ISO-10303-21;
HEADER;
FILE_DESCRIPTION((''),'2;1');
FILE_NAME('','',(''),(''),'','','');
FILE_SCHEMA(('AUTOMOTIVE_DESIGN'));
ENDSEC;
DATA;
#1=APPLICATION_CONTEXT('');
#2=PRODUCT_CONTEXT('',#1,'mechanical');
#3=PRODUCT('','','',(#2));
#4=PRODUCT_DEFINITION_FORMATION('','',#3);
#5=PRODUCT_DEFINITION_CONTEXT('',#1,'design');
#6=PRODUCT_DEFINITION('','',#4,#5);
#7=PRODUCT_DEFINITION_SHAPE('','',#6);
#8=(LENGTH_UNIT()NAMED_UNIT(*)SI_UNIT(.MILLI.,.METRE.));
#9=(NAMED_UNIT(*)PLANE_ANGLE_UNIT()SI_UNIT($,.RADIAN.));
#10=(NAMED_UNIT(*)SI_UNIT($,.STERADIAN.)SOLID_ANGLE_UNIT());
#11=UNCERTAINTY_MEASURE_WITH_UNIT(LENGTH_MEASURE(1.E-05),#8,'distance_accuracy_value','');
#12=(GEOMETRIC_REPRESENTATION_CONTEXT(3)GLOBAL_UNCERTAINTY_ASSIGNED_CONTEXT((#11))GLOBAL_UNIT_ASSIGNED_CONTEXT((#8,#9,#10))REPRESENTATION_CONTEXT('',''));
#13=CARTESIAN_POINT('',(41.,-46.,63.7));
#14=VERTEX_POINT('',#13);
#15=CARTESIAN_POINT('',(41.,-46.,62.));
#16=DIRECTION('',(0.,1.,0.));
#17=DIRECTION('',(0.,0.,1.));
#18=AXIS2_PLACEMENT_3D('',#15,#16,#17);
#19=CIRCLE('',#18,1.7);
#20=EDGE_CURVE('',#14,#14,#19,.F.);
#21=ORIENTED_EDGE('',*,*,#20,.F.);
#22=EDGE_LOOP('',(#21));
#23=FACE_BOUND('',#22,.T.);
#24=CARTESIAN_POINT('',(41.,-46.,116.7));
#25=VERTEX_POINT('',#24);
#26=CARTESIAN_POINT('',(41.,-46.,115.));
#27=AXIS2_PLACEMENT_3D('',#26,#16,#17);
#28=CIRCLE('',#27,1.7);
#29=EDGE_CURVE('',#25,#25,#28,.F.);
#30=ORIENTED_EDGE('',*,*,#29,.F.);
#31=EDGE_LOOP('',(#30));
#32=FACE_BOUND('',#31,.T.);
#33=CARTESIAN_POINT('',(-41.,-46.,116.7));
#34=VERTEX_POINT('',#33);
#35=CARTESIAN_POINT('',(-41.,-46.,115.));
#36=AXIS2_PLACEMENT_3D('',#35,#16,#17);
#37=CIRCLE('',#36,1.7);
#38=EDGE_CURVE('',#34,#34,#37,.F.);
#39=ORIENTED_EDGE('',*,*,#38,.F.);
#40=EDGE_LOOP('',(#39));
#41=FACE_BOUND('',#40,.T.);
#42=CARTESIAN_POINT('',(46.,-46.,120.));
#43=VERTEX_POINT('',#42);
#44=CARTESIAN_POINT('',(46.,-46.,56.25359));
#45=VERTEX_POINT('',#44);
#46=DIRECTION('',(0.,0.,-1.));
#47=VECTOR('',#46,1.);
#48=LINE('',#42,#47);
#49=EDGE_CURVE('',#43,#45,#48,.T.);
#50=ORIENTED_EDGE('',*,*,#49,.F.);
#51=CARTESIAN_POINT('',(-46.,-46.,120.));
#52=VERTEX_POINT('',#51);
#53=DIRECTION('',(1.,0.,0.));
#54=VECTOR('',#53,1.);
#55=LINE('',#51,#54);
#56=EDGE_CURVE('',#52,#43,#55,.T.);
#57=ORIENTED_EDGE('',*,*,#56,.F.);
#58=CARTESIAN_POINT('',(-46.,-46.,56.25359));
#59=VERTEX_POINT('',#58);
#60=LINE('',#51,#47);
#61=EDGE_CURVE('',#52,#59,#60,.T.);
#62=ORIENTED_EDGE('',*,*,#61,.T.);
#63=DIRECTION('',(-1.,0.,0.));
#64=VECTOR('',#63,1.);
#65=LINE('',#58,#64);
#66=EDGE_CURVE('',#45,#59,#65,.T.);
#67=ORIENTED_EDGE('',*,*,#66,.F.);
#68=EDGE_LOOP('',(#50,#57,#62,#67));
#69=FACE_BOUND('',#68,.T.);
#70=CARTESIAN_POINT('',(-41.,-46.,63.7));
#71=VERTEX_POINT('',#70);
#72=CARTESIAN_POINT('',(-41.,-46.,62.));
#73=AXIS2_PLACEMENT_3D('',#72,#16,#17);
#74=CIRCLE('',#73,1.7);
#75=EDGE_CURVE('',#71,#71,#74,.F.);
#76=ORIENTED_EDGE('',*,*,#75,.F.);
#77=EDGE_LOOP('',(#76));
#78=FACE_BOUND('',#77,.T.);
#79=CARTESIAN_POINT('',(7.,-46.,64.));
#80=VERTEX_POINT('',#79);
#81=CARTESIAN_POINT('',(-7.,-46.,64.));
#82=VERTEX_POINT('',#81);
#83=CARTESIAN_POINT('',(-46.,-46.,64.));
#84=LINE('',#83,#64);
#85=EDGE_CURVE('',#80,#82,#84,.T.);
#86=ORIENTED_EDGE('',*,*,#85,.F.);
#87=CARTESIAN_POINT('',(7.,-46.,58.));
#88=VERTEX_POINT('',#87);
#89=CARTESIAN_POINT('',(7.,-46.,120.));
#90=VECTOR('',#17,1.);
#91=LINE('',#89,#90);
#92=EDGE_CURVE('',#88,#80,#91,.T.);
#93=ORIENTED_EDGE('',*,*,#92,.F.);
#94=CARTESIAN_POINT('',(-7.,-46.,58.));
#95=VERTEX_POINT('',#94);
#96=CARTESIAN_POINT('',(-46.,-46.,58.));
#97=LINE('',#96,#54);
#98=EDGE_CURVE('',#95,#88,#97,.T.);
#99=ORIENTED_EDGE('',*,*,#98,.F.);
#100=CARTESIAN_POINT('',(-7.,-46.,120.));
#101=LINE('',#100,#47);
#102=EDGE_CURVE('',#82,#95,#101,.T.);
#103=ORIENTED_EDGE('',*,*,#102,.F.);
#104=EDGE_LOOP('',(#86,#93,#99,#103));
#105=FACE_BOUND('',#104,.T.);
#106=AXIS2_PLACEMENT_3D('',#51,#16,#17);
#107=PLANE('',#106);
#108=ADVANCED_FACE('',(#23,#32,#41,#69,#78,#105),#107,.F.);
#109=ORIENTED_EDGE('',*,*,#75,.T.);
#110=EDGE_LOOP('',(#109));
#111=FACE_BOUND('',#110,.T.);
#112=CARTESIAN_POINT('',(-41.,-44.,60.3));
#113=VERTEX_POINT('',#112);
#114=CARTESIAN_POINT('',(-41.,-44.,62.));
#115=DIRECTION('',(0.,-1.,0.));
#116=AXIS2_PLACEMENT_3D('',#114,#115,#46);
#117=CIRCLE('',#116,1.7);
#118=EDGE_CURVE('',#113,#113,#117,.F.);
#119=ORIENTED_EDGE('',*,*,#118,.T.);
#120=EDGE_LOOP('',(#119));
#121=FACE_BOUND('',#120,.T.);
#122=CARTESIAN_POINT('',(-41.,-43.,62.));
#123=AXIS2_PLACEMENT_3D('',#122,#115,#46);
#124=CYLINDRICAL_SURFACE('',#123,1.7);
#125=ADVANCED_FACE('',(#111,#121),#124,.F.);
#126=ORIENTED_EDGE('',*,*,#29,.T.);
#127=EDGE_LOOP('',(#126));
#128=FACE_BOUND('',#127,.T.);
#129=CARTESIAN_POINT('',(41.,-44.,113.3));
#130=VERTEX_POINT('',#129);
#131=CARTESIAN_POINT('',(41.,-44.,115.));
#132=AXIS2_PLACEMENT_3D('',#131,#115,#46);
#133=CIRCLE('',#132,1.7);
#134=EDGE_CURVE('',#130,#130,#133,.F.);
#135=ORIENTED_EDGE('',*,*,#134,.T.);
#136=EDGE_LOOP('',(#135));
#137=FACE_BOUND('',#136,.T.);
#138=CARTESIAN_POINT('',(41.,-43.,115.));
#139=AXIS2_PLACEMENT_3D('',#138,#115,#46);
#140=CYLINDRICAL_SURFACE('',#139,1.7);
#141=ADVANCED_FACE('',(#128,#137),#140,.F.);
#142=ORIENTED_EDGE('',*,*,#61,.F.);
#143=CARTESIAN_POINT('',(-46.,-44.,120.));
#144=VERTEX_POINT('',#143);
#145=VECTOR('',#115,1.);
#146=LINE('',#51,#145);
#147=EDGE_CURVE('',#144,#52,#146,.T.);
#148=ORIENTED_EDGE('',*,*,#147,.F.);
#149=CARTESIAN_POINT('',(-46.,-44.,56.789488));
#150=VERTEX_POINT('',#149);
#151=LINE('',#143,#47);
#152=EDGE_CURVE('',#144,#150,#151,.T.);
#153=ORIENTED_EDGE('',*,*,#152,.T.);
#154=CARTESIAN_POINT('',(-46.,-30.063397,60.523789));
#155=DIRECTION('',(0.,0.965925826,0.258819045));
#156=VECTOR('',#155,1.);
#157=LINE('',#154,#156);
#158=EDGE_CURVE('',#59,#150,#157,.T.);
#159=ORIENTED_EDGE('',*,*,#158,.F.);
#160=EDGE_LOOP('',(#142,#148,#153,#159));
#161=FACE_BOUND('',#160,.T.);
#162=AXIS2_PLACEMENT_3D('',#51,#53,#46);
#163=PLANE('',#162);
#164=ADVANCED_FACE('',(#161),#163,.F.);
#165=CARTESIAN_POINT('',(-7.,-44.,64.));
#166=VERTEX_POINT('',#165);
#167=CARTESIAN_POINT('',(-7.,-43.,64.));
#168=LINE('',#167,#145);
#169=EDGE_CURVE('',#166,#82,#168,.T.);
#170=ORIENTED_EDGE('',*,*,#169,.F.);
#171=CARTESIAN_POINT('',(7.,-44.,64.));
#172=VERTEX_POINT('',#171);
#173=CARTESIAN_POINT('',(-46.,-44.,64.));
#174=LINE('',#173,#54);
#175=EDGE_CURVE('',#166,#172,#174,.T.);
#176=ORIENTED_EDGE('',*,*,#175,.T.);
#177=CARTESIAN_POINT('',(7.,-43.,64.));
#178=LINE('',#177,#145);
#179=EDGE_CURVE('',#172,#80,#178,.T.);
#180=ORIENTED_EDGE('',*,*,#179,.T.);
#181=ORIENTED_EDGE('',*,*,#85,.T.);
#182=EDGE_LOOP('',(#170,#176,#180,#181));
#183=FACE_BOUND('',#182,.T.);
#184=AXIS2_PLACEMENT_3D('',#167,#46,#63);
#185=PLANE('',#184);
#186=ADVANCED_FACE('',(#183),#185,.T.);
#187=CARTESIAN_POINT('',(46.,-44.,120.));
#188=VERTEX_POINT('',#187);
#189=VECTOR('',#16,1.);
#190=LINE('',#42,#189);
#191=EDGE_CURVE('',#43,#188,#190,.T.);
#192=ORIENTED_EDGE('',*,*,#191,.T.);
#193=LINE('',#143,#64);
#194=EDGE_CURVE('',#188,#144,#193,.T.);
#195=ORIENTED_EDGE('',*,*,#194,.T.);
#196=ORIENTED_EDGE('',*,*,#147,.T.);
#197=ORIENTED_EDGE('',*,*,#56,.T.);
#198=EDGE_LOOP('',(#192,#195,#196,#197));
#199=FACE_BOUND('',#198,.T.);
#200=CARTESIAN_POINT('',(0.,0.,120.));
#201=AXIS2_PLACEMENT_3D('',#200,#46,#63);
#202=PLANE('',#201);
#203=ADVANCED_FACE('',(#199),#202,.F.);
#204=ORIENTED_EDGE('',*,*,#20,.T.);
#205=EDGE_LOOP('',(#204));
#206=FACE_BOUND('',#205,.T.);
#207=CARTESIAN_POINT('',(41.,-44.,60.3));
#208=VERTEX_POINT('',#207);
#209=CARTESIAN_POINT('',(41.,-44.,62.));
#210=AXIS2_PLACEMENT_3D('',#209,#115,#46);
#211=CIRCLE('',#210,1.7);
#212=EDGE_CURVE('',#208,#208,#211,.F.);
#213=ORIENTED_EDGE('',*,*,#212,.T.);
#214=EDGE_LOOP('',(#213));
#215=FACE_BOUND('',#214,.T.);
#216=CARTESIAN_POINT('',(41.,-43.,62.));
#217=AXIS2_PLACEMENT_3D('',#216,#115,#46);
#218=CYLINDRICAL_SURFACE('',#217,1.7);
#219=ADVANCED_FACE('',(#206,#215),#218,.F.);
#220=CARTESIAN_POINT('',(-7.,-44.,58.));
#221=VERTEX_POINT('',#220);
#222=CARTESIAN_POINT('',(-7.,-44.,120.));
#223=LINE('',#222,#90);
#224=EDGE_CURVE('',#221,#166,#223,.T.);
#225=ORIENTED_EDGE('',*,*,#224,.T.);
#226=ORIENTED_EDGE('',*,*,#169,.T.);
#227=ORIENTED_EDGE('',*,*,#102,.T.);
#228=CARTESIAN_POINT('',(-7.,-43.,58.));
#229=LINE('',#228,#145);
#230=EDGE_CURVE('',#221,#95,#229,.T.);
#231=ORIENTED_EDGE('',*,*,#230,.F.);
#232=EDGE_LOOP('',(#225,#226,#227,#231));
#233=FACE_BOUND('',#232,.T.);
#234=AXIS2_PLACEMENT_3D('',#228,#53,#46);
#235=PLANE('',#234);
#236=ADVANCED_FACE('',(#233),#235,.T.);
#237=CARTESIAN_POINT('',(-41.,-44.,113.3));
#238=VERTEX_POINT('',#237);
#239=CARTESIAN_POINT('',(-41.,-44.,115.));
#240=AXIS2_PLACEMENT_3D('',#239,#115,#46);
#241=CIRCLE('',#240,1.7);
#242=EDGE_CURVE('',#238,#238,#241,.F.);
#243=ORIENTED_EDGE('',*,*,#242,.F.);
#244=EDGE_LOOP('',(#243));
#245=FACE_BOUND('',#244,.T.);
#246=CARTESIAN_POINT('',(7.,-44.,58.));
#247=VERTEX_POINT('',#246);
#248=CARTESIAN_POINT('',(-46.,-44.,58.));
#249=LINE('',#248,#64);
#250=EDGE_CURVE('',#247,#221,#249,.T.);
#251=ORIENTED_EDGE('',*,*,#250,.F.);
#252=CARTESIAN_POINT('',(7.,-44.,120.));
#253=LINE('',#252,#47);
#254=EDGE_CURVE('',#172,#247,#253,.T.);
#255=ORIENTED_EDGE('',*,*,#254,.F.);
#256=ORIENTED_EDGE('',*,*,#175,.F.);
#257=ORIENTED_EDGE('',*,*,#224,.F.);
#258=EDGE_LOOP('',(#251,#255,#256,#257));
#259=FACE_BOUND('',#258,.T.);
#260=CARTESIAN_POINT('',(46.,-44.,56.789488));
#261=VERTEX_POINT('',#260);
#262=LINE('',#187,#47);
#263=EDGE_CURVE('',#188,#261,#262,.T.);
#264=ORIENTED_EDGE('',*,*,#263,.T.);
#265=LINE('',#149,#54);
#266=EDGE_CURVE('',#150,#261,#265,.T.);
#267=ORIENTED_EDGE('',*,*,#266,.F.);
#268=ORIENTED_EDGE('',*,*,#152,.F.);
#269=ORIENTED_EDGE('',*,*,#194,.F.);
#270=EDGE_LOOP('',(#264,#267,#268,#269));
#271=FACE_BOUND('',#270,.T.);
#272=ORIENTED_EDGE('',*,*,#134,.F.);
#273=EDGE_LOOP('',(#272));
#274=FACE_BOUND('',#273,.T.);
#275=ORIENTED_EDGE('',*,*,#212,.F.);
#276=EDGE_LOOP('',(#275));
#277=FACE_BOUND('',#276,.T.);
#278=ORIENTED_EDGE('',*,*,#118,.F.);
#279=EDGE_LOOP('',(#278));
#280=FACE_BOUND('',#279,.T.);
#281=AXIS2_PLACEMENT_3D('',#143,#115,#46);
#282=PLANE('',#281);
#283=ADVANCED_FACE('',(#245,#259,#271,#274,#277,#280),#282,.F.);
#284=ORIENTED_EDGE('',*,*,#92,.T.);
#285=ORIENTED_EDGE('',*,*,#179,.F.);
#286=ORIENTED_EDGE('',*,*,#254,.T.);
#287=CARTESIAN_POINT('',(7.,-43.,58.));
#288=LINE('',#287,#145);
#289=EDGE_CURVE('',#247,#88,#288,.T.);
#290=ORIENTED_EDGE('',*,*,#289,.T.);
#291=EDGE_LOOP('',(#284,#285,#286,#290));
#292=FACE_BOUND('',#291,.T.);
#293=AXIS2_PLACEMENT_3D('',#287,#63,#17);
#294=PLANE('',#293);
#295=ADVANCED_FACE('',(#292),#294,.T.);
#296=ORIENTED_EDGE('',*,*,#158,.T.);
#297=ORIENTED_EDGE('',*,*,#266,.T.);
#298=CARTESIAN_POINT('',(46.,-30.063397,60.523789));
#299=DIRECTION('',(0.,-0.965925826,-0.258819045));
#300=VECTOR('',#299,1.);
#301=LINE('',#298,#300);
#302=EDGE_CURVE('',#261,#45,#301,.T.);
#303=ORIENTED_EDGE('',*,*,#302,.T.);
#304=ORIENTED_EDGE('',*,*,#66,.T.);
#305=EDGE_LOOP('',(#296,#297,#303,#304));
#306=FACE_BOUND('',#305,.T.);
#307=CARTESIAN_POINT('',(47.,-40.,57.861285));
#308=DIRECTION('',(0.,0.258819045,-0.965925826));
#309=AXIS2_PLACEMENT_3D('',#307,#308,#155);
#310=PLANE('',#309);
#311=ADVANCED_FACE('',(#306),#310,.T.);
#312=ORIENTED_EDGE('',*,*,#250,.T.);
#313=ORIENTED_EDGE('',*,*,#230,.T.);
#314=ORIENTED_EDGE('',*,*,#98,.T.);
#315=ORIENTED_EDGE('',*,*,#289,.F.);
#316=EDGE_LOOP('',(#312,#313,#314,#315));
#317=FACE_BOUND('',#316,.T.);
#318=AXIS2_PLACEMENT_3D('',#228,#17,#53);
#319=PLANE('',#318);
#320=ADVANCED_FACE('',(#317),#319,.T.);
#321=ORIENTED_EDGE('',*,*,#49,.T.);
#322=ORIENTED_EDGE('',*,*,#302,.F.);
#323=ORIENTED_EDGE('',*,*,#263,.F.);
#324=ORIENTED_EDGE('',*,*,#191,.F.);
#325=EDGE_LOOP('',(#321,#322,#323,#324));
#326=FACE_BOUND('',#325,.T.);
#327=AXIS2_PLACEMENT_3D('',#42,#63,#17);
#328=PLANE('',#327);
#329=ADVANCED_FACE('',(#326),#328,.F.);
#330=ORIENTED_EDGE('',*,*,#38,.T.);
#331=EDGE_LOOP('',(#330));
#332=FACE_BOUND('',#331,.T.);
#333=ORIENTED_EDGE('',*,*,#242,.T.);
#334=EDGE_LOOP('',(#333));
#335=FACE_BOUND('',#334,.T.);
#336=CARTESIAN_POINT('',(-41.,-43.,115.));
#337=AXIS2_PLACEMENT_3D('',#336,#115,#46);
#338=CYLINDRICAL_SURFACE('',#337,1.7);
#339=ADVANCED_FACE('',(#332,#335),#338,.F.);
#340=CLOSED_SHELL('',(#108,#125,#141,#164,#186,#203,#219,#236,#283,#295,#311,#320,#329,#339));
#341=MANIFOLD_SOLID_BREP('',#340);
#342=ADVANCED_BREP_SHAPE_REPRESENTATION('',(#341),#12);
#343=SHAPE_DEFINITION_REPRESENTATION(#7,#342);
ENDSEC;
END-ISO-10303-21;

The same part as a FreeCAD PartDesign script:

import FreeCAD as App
import Part
import Sketcher
from FreeCAD import Vector
Q = App.Units.Quantity

doc = App.newDocument("Part")
body = doc.addObject("PartDesign::Body", "Body")

# Sketch on XY plane
sketch1 = doc.addObject("Sketcher::SketchObject", "Sketch")
body.addObject(sketch1)
sketch1.AttachmentSupport = (doc.XY_Plane, [""])
sketch1.MapMode = "FlatFace"
sketch1.AttachmentOffset = App.Placement(Vector(0, 0, 55), App.Rotation())
sketch1.addGeometry(Part.LineSegment(Vector(-46, -44, 0), Vector(-46, -46, 0)), False)
sketch1.addGeometry(Part.LineSegment(Vector(-46, -46, 0), Vector(46, -46, 0)), False)
sketch1.addGeometry(Part.LineSegment(Vector(46, -46, 0), Vector(46, -44, 0)), False)
sketch1.addGeometry(Part.LineSegment(Vector(46, -44, 0), Vector(-46, -44, 0)), False)
sketch1.addConstraint(Sketcher.Constraint("Coincident", 0, 2, 1, 1))
sketch1.addConstraint(Sketcher.Constraint("Coincident", 1, 2, 2, 1))
sketch1.addConstraint(Sketcher.Constraint("Coincident", 2, 2, 3, 1))
sketch1.addConstraint(Sketcher.Constraint("Coincident", 3, 2, 0, 1))
sketch1.addConstraint(Sketcher.Constraint("Vertical", 0))
sketch1.addConstraint(Sketcher.Constraint("Horizontal", 1))
sketch1.addConstraint(Sketcher.Constraint("Vertical", 2))
sketch1.addConstraint(Sketcher.Constraint("Horizontal", 3))
sketch1.addConstraint(Sketcher.Constraint("DistanceX", 1, 1, 1, 2, Q("92 mm")))
sketch1.addConstraint(Sketcher.Constraint("DistanceY", 0, 2, 0, 1, Q("2 mm")))
sketch1.addConstraint(Sketcher.Constraint("DistanceX", 0, 2, -1, 1, Q("46 mm")))
sketch1.addConstraint(Sketcher.Constraint("DistanceY", 0, 2, -1, 1, Q("46 mm")))
pad1 = doc.addObject("PartDesign::Pad", "Pad")
body.addObject(pad1)
pad1.Profile = sketch1
pad1.Length = 65

# Sketch on XZ plane
sketch2 = doc.addObject("Sketcher::SketchObject", "Sketch001")
body.addObject(sketch2)
sketch2.AttachmentSupport = (doc.XZ_Plane, [""])
sketch2.MapMode = "FlatFace"
sketch2.AttachmentOffset = App.Placement(Vector(0, 0, 47), App.Rotation())
sketch2.addGeometry(Part.LineSegment(Vector(-7, 58, 0), Vector(-7, 64, 0)), False)
sketch2.addGeometry(Part.LineSegment(Vector(-7, 64, 0), Vector(7, 64, 0)), False)
sketch2.addGeometry(Part.LineSegment(Vector(7, 64, 0), Vector(7, 58, 0)), False)
sketch2.addGeometry(Part.LineSegment(Vector(7, 58, 0), Vector(-7, 58, 0)), False)
sketch2.addConstraint(Sketcher.Constraint("Coincident", 0, 2, 1, 1))
sketch2.addConstraint(Sketcher.Constraint("Coincident", 1, 2, 2, 1))
sketch2.addConstraint(Sketcher.Constraint("Coincident", 2, 2, 3, 1))
sketch2.addConstraint(Sketcher.Constraint("Coincident", 3, 2, 0, 1))
sketch2.addConstraint(Sketcher.Constraint("Vertical", 0))
sketch2.addConstraint(Sketcher.Constraint("Horizontal", 1))
sketch2.addConstraint(Sketcher.Constraint("Vertical", 2))
sketch2.addConstraint(Sketcher.Constraint("Horizontal", 3))
sketch2.addConstraint(Sketcher.Constraint("DistanceX", 1, 1, 1, 2, Q("14 mm")))
sketch2.addConstraint(Sketcher.Constraint("DistanceY", 0, 1, 0, 2, Q("6 mm")))
sketch2.addConstraint(Sketcher.Constraint("DistanceX", 0, 2, -1, 1, Q("7 mm")))
sketch2.addConstraint(Sketcher.Constraint("DistanceY", -1, 1, 0, 2, Q("64 mm")))
pocket1 = doc.addObject("PartDesign::Pocket", "Pocket")
body.addObject(pocket1)
pocket1.Profile = sketch2
pocket1.Length = 4

# Sketch on YZ plane
sketch3 = doc.addObject("Sketcher::SketchObject", "Sketch002")
body.addObject(sketch3)
sketch3.AttachmentSupport = (doc.YZ_Plane, [""])
sketch3.MapMode = "FlatFace"
sketch3.AttachmentOffset = App.Placement(Vector(0, 0, -47), App.Rotation())
sketch3.addGeometry(Part.LineSegment(Vector(-47, 10, 0), Vector(-40, 10, 0)), False)
sketch3.addGeometry(Part.LineSegment(Vector(-40, 10, 0), Vector(-40, 58, 0)), False)
sketch3.addGeometry(Part.LineSegment(Vector(-40, 58, 0), Vector(-47, 56, 0)), False)
sketch3.addGeometry(Part.LineSegment(Vector(-47, 56, 0), Vector(-47, 10, 0)), False)
sketch3.addConstraint(Sketcher.Constraint("Coincident", 0, 2, 1, 1))
sketch3.addConstraint(Sketcher.Constraint("Coincident", 1, 2, 2, 1))
sketch3.addConstraint(Sketcher.Constraint("Coincident", 2, 2, 3, 1))
sketch3.addConstraint(Sketcher.Constraint("Coincident", 3, 2, 0, 1))
sketch3.addConstraint(Sketcher.Constraint("Horizontal", 0))
sketch3.addConstraint(Sketcher.Constraint("Vertical", 1))
sketch3.addConstraint(Sketcher.Constraint("Vertical", 3))
sketch3.addConstraint(Sketcher.Constraint("DistanceX", 0, 1, 0, 2, Q("7 mm")))
sketch3.addConstraint(Sketcher.Constraint("Angle", 2, Q("-165 deg")))
sketch3.addConstraint(Sketcher.Constraint("DistanceX", 0, 2, -1, 1, Q("40 mm")))
sketch3.addConstraint(Sketcher.Constraint("DistanceY", -1, 1, 0, 2, Q("10 mm")))
sketch3.addConstraint(Sketcher.Constraint("DistanceY", 3, 2, 3, 1, Q("45.98564 mm")))
pocket2 = doc.addObject("PartDesign::Pocket", "Pocket001")
body.addObject(pocket2)
pocket2.Profile = sketch3
pocket2.Length = 94
pocket2.Reversed = True

# Sketch on XZ plane
sketch4 = doc.addObject("Sketcher::SketchObject", "Sketch003")
body.addObject(sketch4)
sketch4.AttachmentSupport = (doc.XZ_Plane, [""])
sketch4.MapMode = "FlatFace"
sketch4.AttachmentOffset = App.Placement(Vector(0, 0, 47), App.Rotation())
sketch4.addGeometry(Part.Circle(Vector(-41, 62, 0), Vector(0, 0, 1), 1.7), False)
sketch4.addGeometry(Part.Circle(Vector(41, 62, 0), Vector(0, 0, 1), 1.7), False)
sketch4.addGeometry(Part.Circle(Vector(-41, 115, 0), Vector(0, 0, 1), 1.7), False)
sketch4.addGeometry(Part.Circle(Vector(41, 115, 0), Vector(0, 0, 1), 1.7), False)
sketch4.addConstraint(Sketcher.Constraint("Equal", 0, 1))
sketch4.addConstraint(Sketcher.Constraint("Equal", 1, 2))
sketch4.addConstraint(Sketcher.Constraint("Equal", 2, 3))
sketch4.addConstraint(Sketcher.Constraint("Symmetric", 0, 3, 1, 3, -2))
sketch4.addConstraint(Sketcher.Constraint("Symmetric", 2, 3, 3, 3, -2))
sketch4.addConstraint(Sketcher.Constraint("Vertical", 0, 3, 2, 3))
sketch4.addConstraint(Sketcher.Constraint("Diameter", 0, Q("3.4 mm")))
sketch4.addConstraint(Sketcher.Constraint("DistanceX", 0, 3, -1, 1, Q("41 mm")))
sketch4.addConstraint(Sketcher.Constraint("DistanceY", -1, 1, 0, 3, Q("62 mm")))
sketch4.addConstraint(Sketcher.Constraint("DistanceY", -1, 1, 2, 3, Q("115 mm")))
pocket3 = doc.addObject("PartDesign::Pocket", "Pocket002")
body.addObject(pocket3)
pocket3.Profile = sketch4
pocket3.Length = 4

doc.recompute()
